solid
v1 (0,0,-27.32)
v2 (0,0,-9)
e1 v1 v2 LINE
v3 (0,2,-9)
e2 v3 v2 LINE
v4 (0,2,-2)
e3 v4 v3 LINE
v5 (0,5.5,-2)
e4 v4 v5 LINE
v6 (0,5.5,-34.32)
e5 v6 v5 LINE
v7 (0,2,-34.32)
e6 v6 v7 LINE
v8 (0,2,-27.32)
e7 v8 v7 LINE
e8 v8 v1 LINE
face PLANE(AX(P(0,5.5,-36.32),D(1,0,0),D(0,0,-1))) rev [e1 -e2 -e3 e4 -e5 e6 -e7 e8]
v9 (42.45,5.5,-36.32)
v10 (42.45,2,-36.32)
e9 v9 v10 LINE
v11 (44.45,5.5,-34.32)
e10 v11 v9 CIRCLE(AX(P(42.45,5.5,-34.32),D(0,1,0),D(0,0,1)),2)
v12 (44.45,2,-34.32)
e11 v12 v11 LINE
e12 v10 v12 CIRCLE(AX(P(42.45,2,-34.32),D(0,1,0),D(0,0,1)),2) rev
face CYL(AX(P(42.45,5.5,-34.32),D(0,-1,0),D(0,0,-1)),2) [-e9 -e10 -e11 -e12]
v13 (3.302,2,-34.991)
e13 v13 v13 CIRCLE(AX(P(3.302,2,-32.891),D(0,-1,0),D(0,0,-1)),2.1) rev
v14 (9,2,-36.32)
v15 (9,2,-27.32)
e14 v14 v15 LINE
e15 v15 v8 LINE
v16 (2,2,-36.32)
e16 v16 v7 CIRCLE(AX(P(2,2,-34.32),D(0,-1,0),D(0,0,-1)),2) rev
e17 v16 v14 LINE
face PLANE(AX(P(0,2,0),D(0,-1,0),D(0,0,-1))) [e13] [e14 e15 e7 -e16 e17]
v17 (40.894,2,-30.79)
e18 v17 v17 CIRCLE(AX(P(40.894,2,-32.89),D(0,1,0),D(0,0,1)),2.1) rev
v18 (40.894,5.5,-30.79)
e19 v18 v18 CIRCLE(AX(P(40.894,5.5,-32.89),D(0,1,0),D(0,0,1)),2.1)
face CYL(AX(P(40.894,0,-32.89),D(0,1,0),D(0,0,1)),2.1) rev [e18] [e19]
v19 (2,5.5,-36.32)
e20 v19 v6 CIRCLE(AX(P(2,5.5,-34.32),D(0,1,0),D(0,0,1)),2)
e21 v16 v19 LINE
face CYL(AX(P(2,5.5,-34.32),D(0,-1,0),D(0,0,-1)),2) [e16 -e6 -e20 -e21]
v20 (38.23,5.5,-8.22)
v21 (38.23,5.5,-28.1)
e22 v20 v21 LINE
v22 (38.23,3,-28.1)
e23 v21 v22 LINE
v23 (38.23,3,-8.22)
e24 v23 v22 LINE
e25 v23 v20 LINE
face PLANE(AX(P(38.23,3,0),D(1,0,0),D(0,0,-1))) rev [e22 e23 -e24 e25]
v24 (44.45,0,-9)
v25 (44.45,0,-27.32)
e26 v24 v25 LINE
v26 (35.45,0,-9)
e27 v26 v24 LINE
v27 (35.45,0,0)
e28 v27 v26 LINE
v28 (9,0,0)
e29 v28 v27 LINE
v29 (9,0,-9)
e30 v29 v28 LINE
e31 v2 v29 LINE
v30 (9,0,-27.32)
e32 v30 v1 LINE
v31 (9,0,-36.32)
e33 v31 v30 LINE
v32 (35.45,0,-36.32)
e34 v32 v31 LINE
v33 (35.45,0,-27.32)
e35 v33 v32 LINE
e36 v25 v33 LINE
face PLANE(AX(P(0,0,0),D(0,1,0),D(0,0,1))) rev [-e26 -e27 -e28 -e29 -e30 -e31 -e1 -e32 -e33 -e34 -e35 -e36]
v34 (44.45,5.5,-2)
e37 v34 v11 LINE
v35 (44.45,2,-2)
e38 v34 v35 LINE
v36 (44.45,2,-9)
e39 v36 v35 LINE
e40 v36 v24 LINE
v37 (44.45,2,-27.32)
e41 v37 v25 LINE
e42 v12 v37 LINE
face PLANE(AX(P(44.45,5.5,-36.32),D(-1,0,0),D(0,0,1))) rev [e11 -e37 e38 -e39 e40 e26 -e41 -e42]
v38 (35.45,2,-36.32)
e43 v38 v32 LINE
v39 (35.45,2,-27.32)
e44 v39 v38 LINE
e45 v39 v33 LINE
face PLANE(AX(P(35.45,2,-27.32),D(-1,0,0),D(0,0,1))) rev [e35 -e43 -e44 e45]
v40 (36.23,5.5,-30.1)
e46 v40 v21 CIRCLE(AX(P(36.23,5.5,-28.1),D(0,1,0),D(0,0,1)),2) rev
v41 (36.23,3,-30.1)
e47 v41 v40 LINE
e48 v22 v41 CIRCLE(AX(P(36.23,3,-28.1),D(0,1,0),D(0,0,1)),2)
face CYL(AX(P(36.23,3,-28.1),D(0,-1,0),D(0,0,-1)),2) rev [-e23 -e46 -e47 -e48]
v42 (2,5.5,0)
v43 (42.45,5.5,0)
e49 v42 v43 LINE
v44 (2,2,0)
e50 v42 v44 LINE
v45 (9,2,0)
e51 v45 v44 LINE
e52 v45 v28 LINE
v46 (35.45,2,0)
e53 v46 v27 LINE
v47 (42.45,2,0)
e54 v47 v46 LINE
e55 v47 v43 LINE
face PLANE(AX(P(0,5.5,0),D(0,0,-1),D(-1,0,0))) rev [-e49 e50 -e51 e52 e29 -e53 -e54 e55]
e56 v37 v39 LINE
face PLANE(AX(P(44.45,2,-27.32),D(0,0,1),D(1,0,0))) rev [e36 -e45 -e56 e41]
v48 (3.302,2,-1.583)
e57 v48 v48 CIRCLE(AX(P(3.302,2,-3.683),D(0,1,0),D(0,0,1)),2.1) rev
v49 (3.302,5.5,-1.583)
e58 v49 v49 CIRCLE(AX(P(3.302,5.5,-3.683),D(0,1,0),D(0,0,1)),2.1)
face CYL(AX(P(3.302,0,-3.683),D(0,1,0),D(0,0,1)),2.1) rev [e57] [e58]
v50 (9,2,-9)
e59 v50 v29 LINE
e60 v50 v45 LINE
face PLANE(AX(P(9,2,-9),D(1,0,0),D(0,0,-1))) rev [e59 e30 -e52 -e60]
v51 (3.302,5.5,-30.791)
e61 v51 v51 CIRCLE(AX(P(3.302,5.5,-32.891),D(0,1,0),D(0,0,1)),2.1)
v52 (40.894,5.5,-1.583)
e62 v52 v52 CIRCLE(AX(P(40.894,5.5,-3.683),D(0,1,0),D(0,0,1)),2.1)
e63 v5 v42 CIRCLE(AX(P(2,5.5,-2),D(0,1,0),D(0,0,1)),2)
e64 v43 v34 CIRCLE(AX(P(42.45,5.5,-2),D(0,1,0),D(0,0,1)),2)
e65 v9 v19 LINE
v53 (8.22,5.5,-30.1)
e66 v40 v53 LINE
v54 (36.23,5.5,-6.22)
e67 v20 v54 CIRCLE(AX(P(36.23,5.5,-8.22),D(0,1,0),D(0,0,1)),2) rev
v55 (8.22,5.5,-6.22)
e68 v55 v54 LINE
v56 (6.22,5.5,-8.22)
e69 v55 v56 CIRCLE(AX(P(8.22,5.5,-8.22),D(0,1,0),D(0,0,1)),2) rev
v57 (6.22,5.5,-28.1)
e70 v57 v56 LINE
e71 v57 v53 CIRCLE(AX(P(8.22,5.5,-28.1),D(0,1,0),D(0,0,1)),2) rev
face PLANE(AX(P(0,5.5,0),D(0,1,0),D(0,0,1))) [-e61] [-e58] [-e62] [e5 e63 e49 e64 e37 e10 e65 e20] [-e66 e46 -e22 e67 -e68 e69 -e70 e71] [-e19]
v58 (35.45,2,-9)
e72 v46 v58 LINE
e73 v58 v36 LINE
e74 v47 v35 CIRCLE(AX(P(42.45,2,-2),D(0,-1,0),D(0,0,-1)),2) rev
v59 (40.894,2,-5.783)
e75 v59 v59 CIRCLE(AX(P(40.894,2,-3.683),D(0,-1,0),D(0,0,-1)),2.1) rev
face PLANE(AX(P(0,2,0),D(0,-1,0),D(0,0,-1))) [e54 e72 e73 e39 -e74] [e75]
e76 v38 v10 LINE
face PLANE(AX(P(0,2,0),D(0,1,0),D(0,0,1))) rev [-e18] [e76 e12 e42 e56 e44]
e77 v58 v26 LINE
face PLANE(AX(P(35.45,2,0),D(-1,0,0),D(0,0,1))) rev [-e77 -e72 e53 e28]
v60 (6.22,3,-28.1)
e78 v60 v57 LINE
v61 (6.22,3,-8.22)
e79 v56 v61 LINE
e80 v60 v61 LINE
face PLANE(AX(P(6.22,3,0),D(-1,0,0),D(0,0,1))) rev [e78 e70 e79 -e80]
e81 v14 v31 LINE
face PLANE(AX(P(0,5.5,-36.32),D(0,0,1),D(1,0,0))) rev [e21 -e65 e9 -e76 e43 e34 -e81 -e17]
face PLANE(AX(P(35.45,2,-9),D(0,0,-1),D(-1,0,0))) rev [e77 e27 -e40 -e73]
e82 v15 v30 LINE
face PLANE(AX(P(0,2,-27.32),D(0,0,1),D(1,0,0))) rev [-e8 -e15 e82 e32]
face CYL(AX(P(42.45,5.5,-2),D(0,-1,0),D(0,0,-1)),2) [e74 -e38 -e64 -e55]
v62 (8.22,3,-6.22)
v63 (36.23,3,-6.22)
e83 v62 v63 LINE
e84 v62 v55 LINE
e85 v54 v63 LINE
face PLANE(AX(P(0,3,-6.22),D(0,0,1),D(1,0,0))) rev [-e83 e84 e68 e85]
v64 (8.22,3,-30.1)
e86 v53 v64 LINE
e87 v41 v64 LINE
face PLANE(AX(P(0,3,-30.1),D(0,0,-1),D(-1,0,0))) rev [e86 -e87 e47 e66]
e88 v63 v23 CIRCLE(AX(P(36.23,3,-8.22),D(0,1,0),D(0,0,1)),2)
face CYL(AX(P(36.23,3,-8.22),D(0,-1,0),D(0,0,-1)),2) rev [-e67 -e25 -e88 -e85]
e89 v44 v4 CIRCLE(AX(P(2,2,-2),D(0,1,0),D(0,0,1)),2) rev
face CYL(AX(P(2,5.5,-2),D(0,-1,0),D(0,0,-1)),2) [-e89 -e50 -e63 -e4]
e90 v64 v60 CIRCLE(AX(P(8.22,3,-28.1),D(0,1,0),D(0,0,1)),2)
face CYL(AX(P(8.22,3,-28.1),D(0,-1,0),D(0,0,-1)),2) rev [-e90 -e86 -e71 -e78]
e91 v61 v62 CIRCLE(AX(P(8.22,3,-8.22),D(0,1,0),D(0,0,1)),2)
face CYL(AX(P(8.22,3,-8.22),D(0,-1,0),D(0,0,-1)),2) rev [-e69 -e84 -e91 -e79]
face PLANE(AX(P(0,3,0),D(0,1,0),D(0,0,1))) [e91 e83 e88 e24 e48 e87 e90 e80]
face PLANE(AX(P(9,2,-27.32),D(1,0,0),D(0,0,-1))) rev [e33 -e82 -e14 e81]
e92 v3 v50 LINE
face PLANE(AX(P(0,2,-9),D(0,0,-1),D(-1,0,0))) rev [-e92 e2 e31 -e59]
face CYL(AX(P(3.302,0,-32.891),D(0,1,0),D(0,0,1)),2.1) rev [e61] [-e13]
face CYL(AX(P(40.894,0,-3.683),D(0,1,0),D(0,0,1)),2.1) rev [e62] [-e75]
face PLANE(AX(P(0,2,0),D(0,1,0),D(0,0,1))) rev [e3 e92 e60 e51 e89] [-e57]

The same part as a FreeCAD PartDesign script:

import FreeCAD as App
import Part
import Sketcher
Q = App.Units.Quantity


def edges_at(feature, points):
    """Names of the edges that pass closest to the given points."""
    edges = feature.Shape.Edges
    near = lambda p: min(range(len(edges)), key=lambda i: edges[i].distToShape(Part.Vertex(*p))[0])
    return sorted({f"Edge{near(p) + 1}" for p in points})


def add_polygon(sketch, points):
    """Adds a closed chain of lines whose ends are joined by coincident constraints."""
    first, n = sketch.GeometryCount, len(points)
    for a, b in zip(points, points[1:] + points[:1]):
        sketch.addGeometry(Part.LineSegment(App.Vector(*a, 0), App.Vector(*b, 0)), False)
    for i in range(n):
        sketch.addConstraint(Sketcher.Constraint("Coincident", first + i, 2, first + (i + 1) % n, 1))

doc = App.newDocument("Part")
body = doc.addObject("PartDesign::Body", "Body")

# Sketch on XZ plane
sketch1 = body.newObject("Sketcher::SketchObject", "Sketch")
sketch1.AttachmentSupport = (doc.getObject("XZ_Plane"), [""])
sketch1.MapMode = "FlatFace"
add_polygon(sketch1, [(0, -36), (0, 0), (44, 0), (44, -36)])  # lines 0-3
sketch1.addConstraint(Sketcher.Constraint("Vertical", 0))
sketch1.addConstraint(Sketcher.Constraint("Horizontal", 1))
sketch1.addConstraint(Sketcher.Constraint("Vertical", 2))
sketch1.addConstraint(Sketcher.Constraint("Horizontal", 3))
sketch1.addConstraint(Sketcher.Constraint("Coincident", 0, 2, -1, 1))
sketch1.addConstraint(Sketcher.Constraint("DistanceX", 1, 1, 1, 2, Q("44.45 mm")))
sketch1.addConstraint(Sketcher.Constraint("DistanceY", 0, 1, 0, 2, Q("36.32 mm")))
pad1 = body.newObject("PartDesign::Pad", "Pad")
pad1.Profile = sketch1
pad1.Length = 5.5
pad1.Reversed = True

# Sketch on XZ plane
sketch2 = body.newObject("Sketcher::SketchObject", "Sketch001")
sketch2.AttachmentSupport = (doc.getObject("XZ_Plane"), [""])
sketch2.MapMode = "FlatFace"
sketch2.AttachmentOffset = App.Placement(App.Vector(0, 0, -5.5), App.Rotation())
sketch2.addGeometry(Part.Circle(App.Vector(3.3, -32.9, 0), App.Vector(0, 0, 1), 2.1), False)
sketch2.addGeometry(Part.Circle(App.Vector(40.9, -32.9, 0), App.Vector(0, 0, 1), 2.1), False)
sketch2.addGeometry(Part.Circle(App.Vector(40.9, -3.7, 0), App.Vector(0, 0, 1), 2.1), False)
sketch2.addGeometry(Part.Circle(App.Vector(3.3, -3.7, 0), App.Vector(0, 0, 1), 2.1), False)
sketch2.addConstraint(Sketcher.Constraint("Equal", 0, 1))
sketch2.addConstraint(Sketcher.Constraint("Equal", 1, 2))
sketch2.addConstraint(Sketcher.Constraint("Equal", 2, 3))
sketch2.addConstraint(Sketcher.Constraint("Horizontal", 2, 3, 3, 3))
sketch2.addConstraint(Sketcher.Constraint("Vertical", 1, 3, 2, 3))
sketch2.addConstraint(Sketcher.Constraint("Vertical", 0, 3, 3, 3))
sketch2.addConstraint(Sketcher.Constraint("Diameter", 0, Q("4.2 mm")))
sketch2.addConstraint(Sketcher.Constraint("DistanceY", 1, 3, -1, 1, Q("32.89 mm")))
sketch2.addConstraint(Sketcher.Constraint("DistanceX", -1, 1, 0, 3, Q("3.302 mm")))
sketch2.addConstraint(Sketcher.Constraint("DistanceY", 0, 3, -1, 1, Q("32.891 mm")))
sketch2.addConstraint(Sketcher.Constraint("DistanceX", -1, 1, 1, 3, Q("40.894 mm")))
sketch2.addConstraint(Sketcher.Constraint("DistanceY", 2, 3, -1, 1, Q("3.683 mm")))
pocket1 = body.newObject("PartDesign::Pocket", "Pocket")
pocket1.Profile = sketch2
pocket1.Type = "ThroughAll"
pocket1.Reversed = True
doc.recompute()

fillet = body.newObject("PartDesign::Fillet", "Fillet")
fillet.Base = (pocket1, edges_at(pocket1, [
    (0, 2.75, -36.32),
    (44.45, 2.75, -36.32),
    (44.45, 2.75, 0),
    (0, 2.75, 0),
]))
fillet.Radius = 2

# Sketch on XZ plane
sketch3 = body.newObject("Sketcher::SketchObject", "Sketch002")
sketch3.AttachmentSupport = (doc.getObject("XZ_Plane"), [""])
sketch3.MapMode = "FlatFace"
sketch3.AttachmentOffset = App.Placement(App.Vector(0, 0, -5.5), App.Rotation())
add_polygon(sketch3, [(6, -6), (6, -30), (38, -30), (38, -6)])  # lines 0-3
sketch3.addConstraint(Sketcher.Constraint("Vertical", 0))
sketch3.addConstraint(Sketcher.Constraint("Horizontal", 1))
sketch3.addConstraint(Sketcher.Constraint("Vertical", 2))
sketch3.addConstraint(Sketcher.Constraint("Horizontal", 3))
sketch3.addConstraint(Sketcher.Constraint("DistanceX", 1, 1, 1, 2, Q("32.01 mm")))
sketch3.addConstraint(Sketcher.Constraint("DistanceY", 0, 2, 0, 1, Q("23.88 mm")))
sketch3.addConstraint(Sketcher.Constraint("DistanceY", 0, 2, -1, 1, Q("30.1 mm")))
sketch3.addConstraint(Sketcher.Constraint("DistanceX", -1, 1, 0, 2, Q("6.22 mm")))
pocket2 = body.newObject("PartDesign::Pocket", "Pocket001")
pocket2.Profile = sketch3
pocket2.Length = 2.5
pocket2.Reversed = True
doc.recompute()

fillet2 = body.newObject("PartDesign::Fillet", "Fillet001")
fillet2.Base = (pocket2, edges_at(pocket2, [
    (6.22, 4.25, -30.1),
    (38.23, 4.25, -30.1),
    (38.23, 4.25, -6.22),
    (6.22, 4.25, -6.22),
]))
fillet2.Radius = 2

# Sketch on XZ plane
sketch4 = body.newObject("Sketcher::SketchObject", "Sketch003")
sketch4.AttachmentSupport = (doc.getObject("XZ_Plane"), [""])
sketch4.MapMode = "FlatFace"
add_polygon(sketch4, [(0, 0), (0, -9), (9, -9), (9, 0)])  # lines 0-3
add_polygon(sketch4, [(35, 0), (35, -9), (44, -9), (44, 0)])  # lines 4-7
add_polygon(sketch4, [(35, -27), (35, -36), (44, -36), (44, -27)])  # lines 8-11
add_polygon(sketch4, [(0, -27), (0, -36), (9, -36), (9, -27)])  # lines 12-15
sketch4.addConstraint(Sketcher.Constraint("Vertical", 0))
sketch4.addConstraint(Sketcher.Constraint("Horizontal", 1))
sketch4.addConstraint(Sketcher.Constraint("Vertical", 2))
sketch4.addConstraint(Sketcher.Constraint("Horizontal", 3))
sketch4.addConstraint(Sketcher.Constraint("Vertical", 4))
sketch4.addConstraint(Sketcher.Constraint("Horizontal", 5))
sketch4.addConstraint(Sketcher.Constraint("Vertical", 6))
sketch4.addConstraint(Sketcher.Constraint("Horizontal", 7))
sketch4.addConstraint(Sketcher.Constraint("Vertical", 8))
sketch4.addConstraint(Sketcher.Constraint("Horizontal", 9))
sketch4.addConstraint(Sketcher.Constraint("Vertical", 10))
sketch4.addConstraint(Sketcher.Constraint("Horizontal", 11))
sketch4.addConstraint(Sketcher.Constraint("Vertical", 12))
sketch4.addConstraint(Sketcher.Constraint("Horizontal", 13))
sketch4.addConstraint(Sketcher.Constraint("Vertical", 14))
sketch4.addConstraint(Sketcher.Constraint("Horizontal", 15))
sketch4.addConstraint(Sketcher.Constraint("Coincident", 3, 2, -1, 1))
sketch4.addConstraint(Sketcher.Constraint("PointOnObject", 6, 2, -1))
sketch4.addConstraint(Sketcher.Constraint("PointOnObject", 12, 2, -2))
sketch4.addConstraint(Sketcher.Constraint("Horizontal", 1, 2, 4, 2))
sketch4.addConstraint(Sketcher.Constraint("Horizontal", 9, 2, 12, 2))
sketch4.addConstraint(Sketcher.Constraint("Horizontal", 11, 2, 14, 2))
sketch4.addConstraint(Sketcher.Constraint("Vertical", 7, 2, 8, 2))
sketch4.addConstraint(Sketcher.Constraint("Vertical", 6, 2, 9, 2))
sketch4.addConstraint(Sketcher.Constraint("Vertical", 2, 2, 13, 2))
sketch4.addConstraint(Sketcher.Constraint("Equal", 3, 5))
sketch4.addConstraint(Sketcher.Constraint("Equal", 15, 0))
sketch4.addConstraint(Sketcher.Constraint("Equal", 6, 8))
sketch4.addConstraint(Sketcher.Constraint("DistanceX", 1, 1, 1, 2, Q("9 mm")))
sketch4.addConstraint(Sketcher.Constraint("DistanceX", -1, 1, 4, 2, Q("35.45 mm")))
sketch4.addConstraint(Sketcher.Constraint("DistanceY", 8, 2, -1, 1, Q("36.32 mm")))
pocket3 = body.newObject("PartDesign::Pocket", "Pocket002")
pocket3.Profile = sketch4
pocket3.Length = 2

doc.recompute()
